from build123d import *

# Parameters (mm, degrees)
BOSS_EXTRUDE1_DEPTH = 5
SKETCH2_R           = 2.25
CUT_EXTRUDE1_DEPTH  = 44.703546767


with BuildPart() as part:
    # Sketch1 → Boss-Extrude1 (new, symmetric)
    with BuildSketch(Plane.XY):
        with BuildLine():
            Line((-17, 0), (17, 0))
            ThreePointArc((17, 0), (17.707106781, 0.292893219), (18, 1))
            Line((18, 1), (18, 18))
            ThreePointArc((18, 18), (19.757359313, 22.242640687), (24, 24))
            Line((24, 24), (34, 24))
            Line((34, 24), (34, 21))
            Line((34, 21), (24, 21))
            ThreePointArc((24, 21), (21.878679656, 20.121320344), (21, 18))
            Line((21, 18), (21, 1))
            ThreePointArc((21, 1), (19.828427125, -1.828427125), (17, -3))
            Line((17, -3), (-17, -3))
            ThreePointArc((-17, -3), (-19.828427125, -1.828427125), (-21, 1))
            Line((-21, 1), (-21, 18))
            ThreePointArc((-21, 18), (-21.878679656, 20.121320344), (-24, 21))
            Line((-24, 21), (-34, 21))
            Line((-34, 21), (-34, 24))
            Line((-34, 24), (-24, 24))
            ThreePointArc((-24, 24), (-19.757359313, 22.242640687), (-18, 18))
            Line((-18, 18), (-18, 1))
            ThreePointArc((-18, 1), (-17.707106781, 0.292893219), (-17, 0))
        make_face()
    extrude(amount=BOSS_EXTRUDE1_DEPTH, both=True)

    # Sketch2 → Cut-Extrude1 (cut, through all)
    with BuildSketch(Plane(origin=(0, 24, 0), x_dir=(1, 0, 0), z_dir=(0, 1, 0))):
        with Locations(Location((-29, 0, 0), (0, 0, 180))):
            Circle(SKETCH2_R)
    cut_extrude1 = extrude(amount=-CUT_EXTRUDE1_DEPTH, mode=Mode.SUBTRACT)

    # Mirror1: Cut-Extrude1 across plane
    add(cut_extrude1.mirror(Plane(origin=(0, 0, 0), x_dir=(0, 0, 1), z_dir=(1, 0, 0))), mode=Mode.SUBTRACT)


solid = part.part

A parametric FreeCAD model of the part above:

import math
import FreeCAD as App
import Part
import Sketcher
from FreeCAD import Vector
Q = App.Units.Quantity

doc = App.newDocument("Part")
body = doc.addObject("PartDesign::Body", "Body")

# Sketch on XY plane
sketch1 = body.newObject("Sketcher::SketchObject", "Sketch")
sketch1.AttachmentSupport = (doc.getObject("XY_Plane"), [""])
sketch1.MapMode = "FlatFace"
sketch1.addGeometry([
    Part.LineSegment(Vector(17, 0, 0), Vector(-17, 0, 0)),  # 0
    Part.ArcOfCircle(Part.Circle(Vector(-17, 1, 0), Vector(0, 0, 1), 1), math.radians(-180), math.radians(-90)),  # 1
    Part.LineSegment(Vector(-18, 1, 0), Vector(-18, 18, 0)),  # 2
    Part.ArcOfCircle(Part.Circle(Vector(-24, 18, 0), Vector(0, 0, 1), 6), math.radians(0), math.radians(90)),  # 3
    Part.LineSegment(Vector(-24, 24, 0), Vector(-34, 24, 0)),  # 4
    Part.LineSegment(Vector(-34, 24, 0), Vector(-34, 21, 0)),  # 5
    Part.LineSegment(Vector(-34, 21, 0), Vector(-24, 21, 0)),  # 6
    Part.ArcOfCircle(Part.Circle(Vector(-24, 18, 0), Vector(0, 0, 1), 3), math.radians(0), math.radians(90)),  # 7
    Part.LineSegment(Vector(-21, 18, 0), Vector(-21, 1, 0)),  # 8
    Part.ArcOfCircle(Part.Circle(Vector(-17, 1, 0), Vector(0, 0, 1), 4), math.radians(180), math.radians(270)),  # 9
    Part.LineSegment(Vector(-17, -3, 0), Vector(17, -3, 0)),  # 10
    Part.ArcOfCircle(Part.Circle(Vector(17, 1, 0), Vector(0, 0, 1), 4), math.radians(-90), math.radians(0)),  # 11
    Part.LineSegment(Vector(21, 1, 0), Vector(21, 18, 0)),  # 12
    Part.ArcOfCircle(Part.Circle(Vector(24, 18, 0), Vector(0, 0, 1), 3), math.radians(90), math.radians(180)),  # 13
    Part.LineSegment(Vector(24, 21, 0), Vector(34, 21, 0)),  # 14
    Part.LineSegment(Vector(34, 21, 0), Vector(34, 24, 0)),  # 15
    Part.LineSegment(Vector(34, 24, 0), Vector(24, 24, 0)),  # 16
    Part.ArcOfCircle(Part.Circle(Vector(24, 18, 0), Vector(0, 0, 1), 6), math.radians(90), math.radians(180)),  # 17
    Part.LineSegment(Vector(18, 18, 0), Vector(18, 1, 0)),  # 18
    Part.ArcOfCircle(Part.Circle(Vector(17, 1, 0), Vector(0, 0, 1), 1), math.radians(-90), math.radians(0)),  # 19
], False)
sketch1.addConstraint([
    Sketcher.Constraint("Tangent", 0, 2, 1, 2),
    Sketcher.Constraint("Tangent", 1, 1, 2, 1),
    Sketcher.Constraint("Tangent", 2, 2, 3, 1),
    Sketcher.Constraint("Tangent", 3, 2, 4, 1),
    Sketcher.Constraint("Coincident", 4, 2, 5, 1),
    Sketcher.Constraint("Coincident", 5, 2, 6, 1),
    Sketcher.Constraint("Tangent", 6, 2, 7, 2),
    Sketcher.Constraint("Tangent", 7, 1, 8, 1),
    Sketcher.Constraint("Tangent", 8, 2, 9, 1),
    Sketcher.Constraint("Tangent", 9, 2, 10, 1),
    Sketcher.Constraint("Tangent", 10, 2, 11, 1),
    Sketcher.Constraint("Tangent", 11, 2, 12, 1),
    Sketcher.Constraint("Tangent", 12, 2, 13, 2),
    Sketcher.Constraint("Tangent", 13, 1, 14, 1),
    Sketcher.Constraint("Coincident", 14, 2, 15, 1),
    Sketcher.Constraint("Coincident", 15, 2, 16, 1),
    Sketcher.Constraint("Tangent", 16, 2, 17, 1),
    Sketcher.Constraint("Tangent", 17, 2, 18, 1),
    Sketcher.Constraint("Tangent", 18, 2, 19, 2),
    Sketcher.Constraint("Tangent", 19, 1, 0, 1),
    Sketcher.Constraint("Horizontal", 0),
    Sketcher.Constraint("Vertical", 2),
    Sketcher.Constraint("Horizontal", 4),
    Sketcher.Constraint("Vertical", 5),
    Sketcher.Constraint("Horizontal", 6),
    Sketcher.Constraint("Vertical", 8),
    Sketcher.Constraint("Horizontal", 10),
    Sketcher.Constraint("Vertical", 12),
    Sketcher.Constraint("Horizontal", 14),
    Sketcher.Constraint("Vertical", 15),
    Sketcher.Constraint("Horizontal", 16),
    Sketcher.Constraint("Vertical", 18),
    Sketcher.Constraint("Coincident", 7, 3, 3, 3),
    Sketcher.Constraint("Coincident", 9, 3, 1, 3),
    Sketcher.Constraint("Coincident", 17, 3, 13, 3),
    Sketcher.Constraint("Coincident", 19, 3, 11, 3),
    Sketcher.Constraint("Equal", 9, 11),
    Sketcher.Constraint("Equal", 7, 13),
    Sketcher.Constraint("Symmetric", 0, 2, 19, 1, -1, 1),
    Sketcher.Constraint("Symmetric", 5, 2, 14, 2, -2),
    Sketcher.Constraint("Radius", 1, Q("1 mm")),
    Sketcher.Constraint("Radius", 3, Q("6 mm")),
    Sketcher.Constraint("Radius", 7, Q("3 mm")),
    Sketcher.Constraint("DistanceX", 0, 2, 0, 1, Q("34 mm")),
    Sketcher.Constraint("DistanceX", 4, 2, 4, 1, Q("10 mm")),
    Sketcher.Constraint("DistanceY", 2, 1, 2, 2, Q("17 mm")),
])
pad1 = body.newObject("PartDesign::Pad", "Pad")
pad1.Profile = sketch1
pad1.Length = 10
pad1.Midplane = True

# Sketch on XZ plane
sketch2 = body.newObject("Sketcher::SketchObject", "Sketch001")
sketch2.AttachmentSupport = (doc.getObject("XZ_Plane"), [""])
sketch2.MapMode = "FlatFace"
sketch2.AttachmentOffset = App.Placement(Vector(0, 0, -24), App.Rotation())
sketch2.addGeometry(Part.Circle(Vector(-29, 0, 0), Vector(0, 0, 1), 2.2), False)
sketch2.addConstraint([
    Sketcher.Constraint("PointOnObject", 0, 3, -1),
    Sketcher.Constraint("Diameter", 0, Q("4.5 mm")),
    Sketcher.Constraint("DistanceX", 0, 3, -1, 1, Q("29 mm")),
])
pocket1 = body.newObject("PartDesign::Pocket", "Pocket")
pocket1.Profile = sketch2
pocket1.Type = "ThroughAll"
pocket1.Reversed = True
doc.recompute()

mirrored = body.newObject("PartDesign::Mirrored", "Mirrored")
mirrored.Originals = [pocket1]
mirrored.MirrorPlane = (doc.getObject("YZ_Plane"), [""])
body.Tip = mirrored

doc.recompute()
